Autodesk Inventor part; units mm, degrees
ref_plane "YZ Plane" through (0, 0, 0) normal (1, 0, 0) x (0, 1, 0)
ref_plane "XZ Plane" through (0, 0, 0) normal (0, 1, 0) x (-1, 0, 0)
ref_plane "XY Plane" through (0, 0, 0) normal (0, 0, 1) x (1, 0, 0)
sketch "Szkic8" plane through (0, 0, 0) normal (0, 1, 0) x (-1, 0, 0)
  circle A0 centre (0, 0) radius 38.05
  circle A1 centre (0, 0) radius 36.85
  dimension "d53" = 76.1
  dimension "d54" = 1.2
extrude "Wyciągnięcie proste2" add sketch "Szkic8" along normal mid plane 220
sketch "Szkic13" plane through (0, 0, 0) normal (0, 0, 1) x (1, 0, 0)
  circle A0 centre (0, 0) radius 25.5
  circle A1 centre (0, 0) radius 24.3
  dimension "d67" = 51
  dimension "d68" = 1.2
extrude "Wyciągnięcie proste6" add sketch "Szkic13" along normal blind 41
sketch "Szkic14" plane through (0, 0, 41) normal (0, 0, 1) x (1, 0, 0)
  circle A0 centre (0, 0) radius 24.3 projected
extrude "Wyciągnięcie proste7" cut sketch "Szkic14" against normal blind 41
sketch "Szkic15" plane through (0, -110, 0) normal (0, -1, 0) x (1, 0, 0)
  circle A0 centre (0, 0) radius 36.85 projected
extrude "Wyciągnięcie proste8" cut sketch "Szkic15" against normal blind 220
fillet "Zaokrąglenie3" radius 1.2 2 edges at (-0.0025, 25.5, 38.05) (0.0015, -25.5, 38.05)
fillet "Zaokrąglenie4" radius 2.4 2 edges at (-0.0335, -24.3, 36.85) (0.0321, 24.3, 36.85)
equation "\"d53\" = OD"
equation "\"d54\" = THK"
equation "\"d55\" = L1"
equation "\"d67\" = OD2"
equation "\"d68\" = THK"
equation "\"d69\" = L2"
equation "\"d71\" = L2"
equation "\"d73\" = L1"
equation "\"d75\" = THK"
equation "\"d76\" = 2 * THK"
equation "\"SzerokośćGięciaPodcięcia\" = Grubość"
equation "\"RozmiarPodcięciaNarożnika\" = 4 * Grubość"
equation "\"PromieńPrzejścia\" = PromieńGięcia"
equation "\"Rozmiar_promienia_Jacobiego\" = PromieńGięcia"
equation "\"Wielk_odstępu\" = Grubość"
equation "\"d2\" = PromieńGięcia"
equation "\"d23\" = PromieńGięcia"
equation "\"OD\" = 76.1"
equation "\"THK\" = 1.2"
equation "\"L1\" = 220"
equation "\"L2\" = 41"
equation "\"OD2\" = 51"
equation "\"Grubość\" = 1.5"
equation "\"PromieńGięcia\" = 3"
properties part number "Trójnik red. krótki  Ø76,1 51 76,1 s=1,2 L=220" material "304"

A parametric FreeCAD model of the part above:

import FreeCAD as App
import Part
import Sketcher

V = App.Vector


def edges_at(feature, points):
    """Names of the edges that pass closest to the given points."""
    edges = feature.Shape.Edges
    near = lambda p: min(range(len(edges)), key=lambda i: edges[i].distToShape(Part.Vertex(*p))[0])
    return sorted({f"Edge{near(p) + 1}" for p in points})

doc = App.newDocument("Part")
body = doc.addObject("PartDesign::Body", "Body")

# Sketch on XZ plane
sketch1 = body.newObject("Sketcher::SketchObject", "Sketch")
sketch1.AttachmentSupport = (doc.getObject("XZ_Plane"), [""])
sketch1.MapMode = "FlatFace"
sketch1.addGeometry(Part.Circle(V(0, 0, 0), V(0, 0, 1), 38), False)
sketch1.addGeometry(Part.Circle(V(0, 0, 0), V(0, 0, 1), 37), False)
sketch1.addConstraint(Sketcher.Constraint("Coincident", 0, 3, -1, 1))
sketch1.addConstraint(Sketcher.Constraint("Coincident", 1, 3, -1, 1))
sketch1.addConstraint(Sketcher.Constraint("Diameter", 0, 76.1))
sketch1.addConstraint(Sketcher.Constraint("Diameter", 1, 73.7))
pad1 = body.newObject("PartDesign::Pad", "Pad")
pad1.Profile = sketch1
pad1.Length = 220
pad1.Midplane = True

# Sketch on XY plane
sketch2 = body.newObject("Sketcher::SketchObject", "Sketch001")
sketch2.AttachmentSupport = (doc.getObject("XY_Plane"), [""])
sketch2.MapMode = "FlatFace"
sketch2.addGeometry(Part.Circle(V(0, 0, 0), V(0, 0, 1), 26), False)
sketch2.addGeometry(Part.Circle(V(0, 0, 0), V(0, 0, 1), 24), False)
sketch2.addConstraint(Sketcher.Constraint("Coincident", 0, 3, -1, 1))
sketch2.addConstraint(Sketcher.Constraint("Coincident", 1, 3, -1, 1))
sketch2.addConstraint(Sketcher.Constraint("Diameter", 0, 51.0))
sketch2.addConstraint(Sketcher.Constraint("Diameter", 1, 48.6))
pad2 = body.newObject("PartDesign::Pad", "Pad001")
pad2.Profile = sketch2
pad2.Length = 41

# Sketch on XY plane
sketch3 = body.newObject("Sketcher::SketchObject", "Sketch002")
sketch3.AttachmentSupport = (doc.getObject("XY_Plane"), [""])
sketch3.MapMode = "FlatFace"
sketch3.AttachmentOffset = App.Placement(V(0, 0, 41), App.Rotation())
sketch3.addGeometry(Part.Circle(V(0, 0, 0), V(0, 0, 1), 24), False)
sketch3.addConstraint(Sketcher.Constraint("Coincident", 0, 3, -1, 1))
sketch3.addConstraint(Sketcher.Constraint("Diameter", 0, 48.6))
pocket1 = body.newObject("PartDesign::Pocket", "Pocket")
pocket1.Profile = sketch3
pocket1.Length = 41

# Sketch on XZ plane
sketch4 = body.newObject("Sketcher::SketchObject", "Sketch003")
sketch4.AttachmentSupport = (doc.getObject("XZ_Plane"), [""])
sketch4.MapMode = "FlatFace"
sketch4.AttachmentOffset = App.Placement(V(0, 0, 110), App.Rotation())
sketch4.addGeometry(Part.Circle(V(0, 0, 0), V(0, 0, 1), 37), False)
sketch4.addConstraint(Sketcher.Constraint("Coincident", 0, 3, -1, 1))
sketch4.addConstraint(Sketcher.Constraint("Diameter", 0, 73.7))
pocket2 = body.newObject("PartDesign::Pocket", "Pocket001")
pocket2.Profile = sketch4
pocket2.Length = 220
doc.recompute()

fillet = body.newObject("PartDesign::Fillet", "Fillet")
fillet.Base = (pocket2, edges_at(pocket2, [(-0.003, 25.5, 38.05), (0.002, -25.5, 38.05)]))
fillet.Radius = 1.2
doc.recompute()

fillet2 = body.newObject("PartDesign::Fillet", "Fillet001")
fillet2.Base = (fillet, edges_at(fillet, [(-0.034, -24.3, 36.85), (0.032, 24.3, 36.85)]))
fillet2.Radius = 2.4

doc.recompute()
